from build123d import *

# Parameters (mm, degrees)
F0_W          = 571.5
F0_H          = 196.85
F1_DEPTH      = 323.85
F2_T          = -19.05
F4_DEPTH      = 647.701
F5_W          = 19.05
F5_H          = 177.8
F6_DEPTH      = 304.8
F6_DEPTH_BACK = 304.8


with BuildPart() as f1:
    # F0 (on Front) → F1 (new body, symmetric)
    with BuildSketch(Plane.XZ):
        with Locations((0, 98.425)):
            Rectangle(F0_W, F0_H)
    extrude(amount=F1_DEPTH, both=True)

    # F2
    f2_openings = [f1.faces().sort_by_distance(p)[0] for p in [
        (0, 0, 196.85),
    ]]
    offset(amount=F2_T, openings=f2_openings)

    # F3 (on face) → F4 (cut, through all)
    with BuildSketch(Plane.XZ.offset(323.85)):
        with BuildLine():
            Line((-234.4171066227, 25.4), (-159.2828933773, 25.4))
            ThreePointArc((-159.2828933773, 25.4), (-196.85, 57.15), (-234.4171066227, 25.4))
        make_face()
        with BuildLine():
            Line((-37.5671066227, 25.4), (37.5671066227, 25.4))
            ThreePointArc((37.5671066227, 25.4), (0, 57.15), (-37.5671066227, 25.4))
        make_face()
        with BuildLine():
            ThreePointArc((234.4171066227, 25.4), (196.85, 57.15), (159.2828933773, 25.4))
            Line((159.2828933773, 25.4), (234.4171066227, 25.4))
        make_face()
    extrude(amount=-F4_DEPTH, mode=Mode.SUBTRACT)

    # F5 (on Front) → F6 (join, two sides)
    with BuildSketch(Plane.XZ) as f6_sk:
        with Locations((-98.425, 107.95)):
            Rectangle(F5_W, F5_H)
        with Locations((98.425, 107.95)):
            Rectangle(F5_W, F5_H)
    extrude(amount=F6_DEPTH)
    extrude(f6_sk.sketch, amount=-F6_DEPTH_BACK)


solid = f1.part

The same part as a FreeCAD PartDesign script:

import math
import FreeCAD as App
import Part
import Sketcher
from FreeCAD import Vector
Q = App.Units.Quantity


def faces_at(feature, points):
    """Names of the faces that lie closest to the given points."""
    faces = feature.Shape.Faces
    near = lambda p: min(range(len(faces)), key=lambda i: faces[i].distToShape(Part.Vertex(*p))[0])
    return sorted({f"Face{near(p) + 1}" for p in points})

doc = App.newDocument("Part")
body = doc.addObject("PartDesign::Body", "Body")

# Sketch on XZ plane
sketch1 = body.newObject("Sketcher::SketchObject", "Sketch")
sketch1.AttachmentSupport = (doc.getObject("XZ_Plane"), [""])
sketch1.MapMode = "FlatFace"
sketch1.addGeometry(Part.LineSegment(Vector(-285.75, 196.85, 0), Vector(-285.75, 0, 0)), False)
sketch1.addGeometry(Part.LineSegment(Vector(-285.75, 0, 0), Vector(285.75, 0, 0)), False)
sketch1.addGeometry(Part.LineSegment(Vector(285.75, 0, 0), Vector(285.75, 196.85, 0)), False)
sketch1.addGeometry(Part.LineSegment(Vector(285.75, 196.85, 0), Vector(-285.75, 196.85, 0)), False)
sketch1.addConstraint(Sketcher.Constraint("Coincident", 0, 2, 1, 1))
sketch1.addConstraint(Sketcher.Constraint("Coincident", 1, 2, 2, 1))
sketch1.addConstraint(Sketcher.Constraint("Coincident", 2, 2, 3, 1))
sketch1.addConstraint(Sketcher.Constraint("Coincident", 3, 2, 0, 1))
sketch1.addConstraint(Sketcher.Constraint("Vertical", 0))
sketch1.addConstraint(Sketcher.Constraint("Horizontal", 1))
sketch1.addConstraint(Sketcher.Constraint("Vertical", 2))
sketch1.addConstraint(Sketcher.Constraint("Horizontal", 3))
sketch1.addConstraint(Sketcher.Constraint("Symmetric", 0, 2, 1, 2, -1, 1))
sketch1.addConstraint(Sketcher.Constraint("DistanceX", 1, 1, 1, 2, Q("22.5 in")))
sketch1.addConstraint(Sketcher.Constraint("DistanceY", 0, 2, 0, 1, Q("7.75 in")))
pad1 = body.newObject("PartDesign::Pad", "Pad")
pad1.Profile = sketch1
pad1.Length = Q("25.5 in")
pad1.Midplane = True
doc.recompute()

thickness = body.newObject("PartDesign::Thickness", "Thickness")
thickness.Base = (pad1, faces_at(pad1, [(0, 0, 196.85)]))
thickness.Value = Q("0.75 in")
thickness.Reversed = True
thickness.Join = "Arc"

# Sketch on XZ plane
sketch2 = body.newObject("Sketcher::SketchObject", "Sketch001")
sketch2.AttachmentSupport = (doc.getObject("XZ_Plane"), [""])
sketch2.MapMode = "FlatFace"
sketch2.AttachmentOffset = App.Placement(Vector(0, 0, 12.75 * 25.4), App.Rotation())
sketch2.addGeometry(Part.LineSegment(Vector(-234.417107, 25.4, 0), Vector(-159.282893, 25.4, 0)), False)
sketch2.addGeometry(Part.ArcOfCircle(Part.Circle(Vector(-196.85, 19.05, 0), Vector(0, 0, 1), 38.1), math.radians(9.594068), math.radians(170.405932)), False)
sketch2.addGeometry(Part.LineSegment(Vector(-37.567107, 25.4, 0), Vector(37.567107, 25.4, 0)), False)
sketch2.addGeometry(Part.ArcOfCircle(Part.Circle(Vector(0, 19.05, 0), Vector(0, 0, 1), 38.1), math.radians(9.594068), math.radians(170.405932)), False)
sketch2.addGeometry(Part.ArcOfCircle(Part.Circle(Vector(196.85, 19.05, 0), Vector(0, 0, 1), 38.1), math.radians(9.594068), math.radians(170.405932)), False)
sketch2.addGeometry(Part.LineSegment(Vector(159.282893, 25.4, 0), Vector(234.417107, 25.4, 0)), False)
sketch2.addConstraint(Sketcher.Constraint("Coincident", 0, 1, 1, 2))
sketch2.addConstraint(Sketcher.Constraint("Coincident", 1, 1, 0, 2))
sketch2.addConstraint(Sketcher.Constraint("Coincident", 2, 1, 3, 2))
sketch2.addConstraint(Sketcher.Constraint("Coincident", 3, 1, 2, 2))
sketch2.addConstraint(Sketcher.Constraint("Coincident", 4, 1, 5, 2))
sketch2.addConstraint(Sketcher.Constraint("Coincident", 5, 1, 4, 2))
sketch2.addConstraint(Sketcher.Constraint("Horizontal", 0))
sketch2.addConstraint(Sketcher.Constraint("Horizontal", 2))
sketch2.addConstraint(Sketcher.Constraint("Horizontal", 5))
sketch2.addConstraint(Sketcher.Constraint("Equal", 1, 3))
sketch2.addConstraint(Sketcher.Constraint("Equal", 3, 4))
sketch2.addConstraint(Sketcher.Constraint("Symmetric", 1, 3, 4, 3, -2))
sketch2.addConstraint(Sketcher.Constraint("PointOnObject", 3, 3, -2))
sketch2.addConstraint(Sketcher.Constraint("Horizontal", 1, 3, 3, 3))
sketch2.addConstraint(Sketcher.Constraint("Horizontal", 1, 1, 2, 1))
sketch2.addConstraint(Sketcher.Constraint("Horizontal", 3, 1, 4, 1))
sketch2.addConstraint(Sketcher.Constraint("Radius", 1, Q("1.5 in")))
sketch2.addConstraint(Sketcher.Constraint("DistanceY", -1, 1, 0, 1, Q("1 in")))
sketch2.addConstraint(Sketcher.Constraint("DistanceX", 1, 3, 4, 3, Q("15.5 in")))
sketch2.addConstraint(Sketcher.Constraint("DistanceY", -1, 1, 1, 3, Q("0.75 in")))
pocket1 = body.newObject("PartDesign::Pocket", "Pocket")
pocket1.Profile = sketch2
pocket1.Type = "ThroughAll"

# Sketch on XZ plane
sketch3 = body.newObject("Sketcher::SketchObject", "Sketch002")
sketch3.AttachmentSupport = (doc.getObject("XZ_Plane"), [""])
sketch3.MapMode = "FlatFace"
sketch3.addGeometry(Part.LineSegment(Vector(-107.95, 196.85, 0), Vector(-107.95, 19.05, 0)), False)
sketch3.addGeometry(Part.LineSegment(Vector(-107.95, 19.05, 0), Vector(-88.9, 19.05, 0)), False)
sketch3.addGeometry(Part.LineSegment(Vector(-88.9, 19.05, 0), Vector(-88.9, 196.85, 0)), False)
sketch3.addGeometry(Part.LineSegment(Vector(-88.9, 196.85, 0), Vector(-107.95, 196.85, 0)), False)
sketch3.addGeometry(Part.LineSegment(Vector(88.9, 196.85, 0), Vector(88.9, 19.05, 0)), False)
sketch3.addGeometry(Part.LineSegment(Vector(88.9, 19.05, 0), Vector(107.95, 19.05, 0)), False)
sketch3.addGeometry(Part.LineSegment(Vector(107.95, 19.05, 0), Vector(107.95, 196.85, 0)), False)
sketch3.addGeometry(Part.LineSegment(Vector(107.95, 196.85, 0), Vector(88.9, 196.85, 0)), False)
sketch3.addConstraint(Sketcher.Constraint("Coincident", 0, 2, 1, 1))
sketch3.addConstraint(Sketcher.Constraint("Coincident", 1, 2, 2, 1))
sketch3.addConstraint(Sketcher.Constraint("Coincident", 2, 2, 3, 1))
sketch3.addConstraint(Sketcher.Constraint("Coincident", 3, 2, 0, 1))
sketch3.addConstraint(Sketcher.Constraint("Coincident", 4, 2, 5, 1))
sketch3.addConstraint(Sketcher.Constraint("Coincident", 5, 2, 6, 1))
sketch3.addConstraint(Sketcher.Constraint("Coincident", 6, 2, 7, 1))
sketch3.addConstraint(Sketcher.Constraint("Coincident", 7, 2, 4, 1))
sketch3.addConstraint(Sketcher.Constraint("Vertical", 0))
sketch3.addConstraint(Sketcher.Constraint("Horizontal", 1))
sketch3.addConstraint(Sketcher.Constraint("Vertical", 2))
sketch3.addConstraint(Sketcher.Constraint("Horizontal", 3))
sketch3.addConstraint(Sketcher.Constraint("Vertical", 4))
sketch3.addConstraint(Sketcher.Constraint("Horizontal", 5))
sketch3.addConstraint(Sketcher.Constraint("Vertical", 6))
sketch3.addConstraint(Sketcher.Constraint("Horizontal", 7))
sketch3.addConstraint(Sketcher.Constraint("Symmetric", 1, 2, 4, 2, -2))
sketch3.addConstraint(Sketcher.Constraint("Symmetric", 3, 2, 6, 2, -2))
sketch3.addConstraint(Sketcher.Constraint("DistanceY", 0, 2, 0, 1, Q("7 in")))
sketch3.addConstraint(Sketcher.Constraint("DistanceX", 1, 2, 4, 2, Q("7 in")))
sketch3.addConstraint(Sketcher.Constraint("DistanceX", 1, 1, 1, 2, Q("0.75 in")))
sketch3.addConstraint(Sketcher.Constraint("DistanceY", -1, 1, 0, 2, Q("0.75 in")))
pad2 = body.newObject("PartDesign::Pad", "Pad001")
pad2.Profile = sketch3
pad2.Type = "TwoLengths"
pad2.Length = Q("12 in")
pad2.Length2 = Q("12 in")

doc.recompute()
